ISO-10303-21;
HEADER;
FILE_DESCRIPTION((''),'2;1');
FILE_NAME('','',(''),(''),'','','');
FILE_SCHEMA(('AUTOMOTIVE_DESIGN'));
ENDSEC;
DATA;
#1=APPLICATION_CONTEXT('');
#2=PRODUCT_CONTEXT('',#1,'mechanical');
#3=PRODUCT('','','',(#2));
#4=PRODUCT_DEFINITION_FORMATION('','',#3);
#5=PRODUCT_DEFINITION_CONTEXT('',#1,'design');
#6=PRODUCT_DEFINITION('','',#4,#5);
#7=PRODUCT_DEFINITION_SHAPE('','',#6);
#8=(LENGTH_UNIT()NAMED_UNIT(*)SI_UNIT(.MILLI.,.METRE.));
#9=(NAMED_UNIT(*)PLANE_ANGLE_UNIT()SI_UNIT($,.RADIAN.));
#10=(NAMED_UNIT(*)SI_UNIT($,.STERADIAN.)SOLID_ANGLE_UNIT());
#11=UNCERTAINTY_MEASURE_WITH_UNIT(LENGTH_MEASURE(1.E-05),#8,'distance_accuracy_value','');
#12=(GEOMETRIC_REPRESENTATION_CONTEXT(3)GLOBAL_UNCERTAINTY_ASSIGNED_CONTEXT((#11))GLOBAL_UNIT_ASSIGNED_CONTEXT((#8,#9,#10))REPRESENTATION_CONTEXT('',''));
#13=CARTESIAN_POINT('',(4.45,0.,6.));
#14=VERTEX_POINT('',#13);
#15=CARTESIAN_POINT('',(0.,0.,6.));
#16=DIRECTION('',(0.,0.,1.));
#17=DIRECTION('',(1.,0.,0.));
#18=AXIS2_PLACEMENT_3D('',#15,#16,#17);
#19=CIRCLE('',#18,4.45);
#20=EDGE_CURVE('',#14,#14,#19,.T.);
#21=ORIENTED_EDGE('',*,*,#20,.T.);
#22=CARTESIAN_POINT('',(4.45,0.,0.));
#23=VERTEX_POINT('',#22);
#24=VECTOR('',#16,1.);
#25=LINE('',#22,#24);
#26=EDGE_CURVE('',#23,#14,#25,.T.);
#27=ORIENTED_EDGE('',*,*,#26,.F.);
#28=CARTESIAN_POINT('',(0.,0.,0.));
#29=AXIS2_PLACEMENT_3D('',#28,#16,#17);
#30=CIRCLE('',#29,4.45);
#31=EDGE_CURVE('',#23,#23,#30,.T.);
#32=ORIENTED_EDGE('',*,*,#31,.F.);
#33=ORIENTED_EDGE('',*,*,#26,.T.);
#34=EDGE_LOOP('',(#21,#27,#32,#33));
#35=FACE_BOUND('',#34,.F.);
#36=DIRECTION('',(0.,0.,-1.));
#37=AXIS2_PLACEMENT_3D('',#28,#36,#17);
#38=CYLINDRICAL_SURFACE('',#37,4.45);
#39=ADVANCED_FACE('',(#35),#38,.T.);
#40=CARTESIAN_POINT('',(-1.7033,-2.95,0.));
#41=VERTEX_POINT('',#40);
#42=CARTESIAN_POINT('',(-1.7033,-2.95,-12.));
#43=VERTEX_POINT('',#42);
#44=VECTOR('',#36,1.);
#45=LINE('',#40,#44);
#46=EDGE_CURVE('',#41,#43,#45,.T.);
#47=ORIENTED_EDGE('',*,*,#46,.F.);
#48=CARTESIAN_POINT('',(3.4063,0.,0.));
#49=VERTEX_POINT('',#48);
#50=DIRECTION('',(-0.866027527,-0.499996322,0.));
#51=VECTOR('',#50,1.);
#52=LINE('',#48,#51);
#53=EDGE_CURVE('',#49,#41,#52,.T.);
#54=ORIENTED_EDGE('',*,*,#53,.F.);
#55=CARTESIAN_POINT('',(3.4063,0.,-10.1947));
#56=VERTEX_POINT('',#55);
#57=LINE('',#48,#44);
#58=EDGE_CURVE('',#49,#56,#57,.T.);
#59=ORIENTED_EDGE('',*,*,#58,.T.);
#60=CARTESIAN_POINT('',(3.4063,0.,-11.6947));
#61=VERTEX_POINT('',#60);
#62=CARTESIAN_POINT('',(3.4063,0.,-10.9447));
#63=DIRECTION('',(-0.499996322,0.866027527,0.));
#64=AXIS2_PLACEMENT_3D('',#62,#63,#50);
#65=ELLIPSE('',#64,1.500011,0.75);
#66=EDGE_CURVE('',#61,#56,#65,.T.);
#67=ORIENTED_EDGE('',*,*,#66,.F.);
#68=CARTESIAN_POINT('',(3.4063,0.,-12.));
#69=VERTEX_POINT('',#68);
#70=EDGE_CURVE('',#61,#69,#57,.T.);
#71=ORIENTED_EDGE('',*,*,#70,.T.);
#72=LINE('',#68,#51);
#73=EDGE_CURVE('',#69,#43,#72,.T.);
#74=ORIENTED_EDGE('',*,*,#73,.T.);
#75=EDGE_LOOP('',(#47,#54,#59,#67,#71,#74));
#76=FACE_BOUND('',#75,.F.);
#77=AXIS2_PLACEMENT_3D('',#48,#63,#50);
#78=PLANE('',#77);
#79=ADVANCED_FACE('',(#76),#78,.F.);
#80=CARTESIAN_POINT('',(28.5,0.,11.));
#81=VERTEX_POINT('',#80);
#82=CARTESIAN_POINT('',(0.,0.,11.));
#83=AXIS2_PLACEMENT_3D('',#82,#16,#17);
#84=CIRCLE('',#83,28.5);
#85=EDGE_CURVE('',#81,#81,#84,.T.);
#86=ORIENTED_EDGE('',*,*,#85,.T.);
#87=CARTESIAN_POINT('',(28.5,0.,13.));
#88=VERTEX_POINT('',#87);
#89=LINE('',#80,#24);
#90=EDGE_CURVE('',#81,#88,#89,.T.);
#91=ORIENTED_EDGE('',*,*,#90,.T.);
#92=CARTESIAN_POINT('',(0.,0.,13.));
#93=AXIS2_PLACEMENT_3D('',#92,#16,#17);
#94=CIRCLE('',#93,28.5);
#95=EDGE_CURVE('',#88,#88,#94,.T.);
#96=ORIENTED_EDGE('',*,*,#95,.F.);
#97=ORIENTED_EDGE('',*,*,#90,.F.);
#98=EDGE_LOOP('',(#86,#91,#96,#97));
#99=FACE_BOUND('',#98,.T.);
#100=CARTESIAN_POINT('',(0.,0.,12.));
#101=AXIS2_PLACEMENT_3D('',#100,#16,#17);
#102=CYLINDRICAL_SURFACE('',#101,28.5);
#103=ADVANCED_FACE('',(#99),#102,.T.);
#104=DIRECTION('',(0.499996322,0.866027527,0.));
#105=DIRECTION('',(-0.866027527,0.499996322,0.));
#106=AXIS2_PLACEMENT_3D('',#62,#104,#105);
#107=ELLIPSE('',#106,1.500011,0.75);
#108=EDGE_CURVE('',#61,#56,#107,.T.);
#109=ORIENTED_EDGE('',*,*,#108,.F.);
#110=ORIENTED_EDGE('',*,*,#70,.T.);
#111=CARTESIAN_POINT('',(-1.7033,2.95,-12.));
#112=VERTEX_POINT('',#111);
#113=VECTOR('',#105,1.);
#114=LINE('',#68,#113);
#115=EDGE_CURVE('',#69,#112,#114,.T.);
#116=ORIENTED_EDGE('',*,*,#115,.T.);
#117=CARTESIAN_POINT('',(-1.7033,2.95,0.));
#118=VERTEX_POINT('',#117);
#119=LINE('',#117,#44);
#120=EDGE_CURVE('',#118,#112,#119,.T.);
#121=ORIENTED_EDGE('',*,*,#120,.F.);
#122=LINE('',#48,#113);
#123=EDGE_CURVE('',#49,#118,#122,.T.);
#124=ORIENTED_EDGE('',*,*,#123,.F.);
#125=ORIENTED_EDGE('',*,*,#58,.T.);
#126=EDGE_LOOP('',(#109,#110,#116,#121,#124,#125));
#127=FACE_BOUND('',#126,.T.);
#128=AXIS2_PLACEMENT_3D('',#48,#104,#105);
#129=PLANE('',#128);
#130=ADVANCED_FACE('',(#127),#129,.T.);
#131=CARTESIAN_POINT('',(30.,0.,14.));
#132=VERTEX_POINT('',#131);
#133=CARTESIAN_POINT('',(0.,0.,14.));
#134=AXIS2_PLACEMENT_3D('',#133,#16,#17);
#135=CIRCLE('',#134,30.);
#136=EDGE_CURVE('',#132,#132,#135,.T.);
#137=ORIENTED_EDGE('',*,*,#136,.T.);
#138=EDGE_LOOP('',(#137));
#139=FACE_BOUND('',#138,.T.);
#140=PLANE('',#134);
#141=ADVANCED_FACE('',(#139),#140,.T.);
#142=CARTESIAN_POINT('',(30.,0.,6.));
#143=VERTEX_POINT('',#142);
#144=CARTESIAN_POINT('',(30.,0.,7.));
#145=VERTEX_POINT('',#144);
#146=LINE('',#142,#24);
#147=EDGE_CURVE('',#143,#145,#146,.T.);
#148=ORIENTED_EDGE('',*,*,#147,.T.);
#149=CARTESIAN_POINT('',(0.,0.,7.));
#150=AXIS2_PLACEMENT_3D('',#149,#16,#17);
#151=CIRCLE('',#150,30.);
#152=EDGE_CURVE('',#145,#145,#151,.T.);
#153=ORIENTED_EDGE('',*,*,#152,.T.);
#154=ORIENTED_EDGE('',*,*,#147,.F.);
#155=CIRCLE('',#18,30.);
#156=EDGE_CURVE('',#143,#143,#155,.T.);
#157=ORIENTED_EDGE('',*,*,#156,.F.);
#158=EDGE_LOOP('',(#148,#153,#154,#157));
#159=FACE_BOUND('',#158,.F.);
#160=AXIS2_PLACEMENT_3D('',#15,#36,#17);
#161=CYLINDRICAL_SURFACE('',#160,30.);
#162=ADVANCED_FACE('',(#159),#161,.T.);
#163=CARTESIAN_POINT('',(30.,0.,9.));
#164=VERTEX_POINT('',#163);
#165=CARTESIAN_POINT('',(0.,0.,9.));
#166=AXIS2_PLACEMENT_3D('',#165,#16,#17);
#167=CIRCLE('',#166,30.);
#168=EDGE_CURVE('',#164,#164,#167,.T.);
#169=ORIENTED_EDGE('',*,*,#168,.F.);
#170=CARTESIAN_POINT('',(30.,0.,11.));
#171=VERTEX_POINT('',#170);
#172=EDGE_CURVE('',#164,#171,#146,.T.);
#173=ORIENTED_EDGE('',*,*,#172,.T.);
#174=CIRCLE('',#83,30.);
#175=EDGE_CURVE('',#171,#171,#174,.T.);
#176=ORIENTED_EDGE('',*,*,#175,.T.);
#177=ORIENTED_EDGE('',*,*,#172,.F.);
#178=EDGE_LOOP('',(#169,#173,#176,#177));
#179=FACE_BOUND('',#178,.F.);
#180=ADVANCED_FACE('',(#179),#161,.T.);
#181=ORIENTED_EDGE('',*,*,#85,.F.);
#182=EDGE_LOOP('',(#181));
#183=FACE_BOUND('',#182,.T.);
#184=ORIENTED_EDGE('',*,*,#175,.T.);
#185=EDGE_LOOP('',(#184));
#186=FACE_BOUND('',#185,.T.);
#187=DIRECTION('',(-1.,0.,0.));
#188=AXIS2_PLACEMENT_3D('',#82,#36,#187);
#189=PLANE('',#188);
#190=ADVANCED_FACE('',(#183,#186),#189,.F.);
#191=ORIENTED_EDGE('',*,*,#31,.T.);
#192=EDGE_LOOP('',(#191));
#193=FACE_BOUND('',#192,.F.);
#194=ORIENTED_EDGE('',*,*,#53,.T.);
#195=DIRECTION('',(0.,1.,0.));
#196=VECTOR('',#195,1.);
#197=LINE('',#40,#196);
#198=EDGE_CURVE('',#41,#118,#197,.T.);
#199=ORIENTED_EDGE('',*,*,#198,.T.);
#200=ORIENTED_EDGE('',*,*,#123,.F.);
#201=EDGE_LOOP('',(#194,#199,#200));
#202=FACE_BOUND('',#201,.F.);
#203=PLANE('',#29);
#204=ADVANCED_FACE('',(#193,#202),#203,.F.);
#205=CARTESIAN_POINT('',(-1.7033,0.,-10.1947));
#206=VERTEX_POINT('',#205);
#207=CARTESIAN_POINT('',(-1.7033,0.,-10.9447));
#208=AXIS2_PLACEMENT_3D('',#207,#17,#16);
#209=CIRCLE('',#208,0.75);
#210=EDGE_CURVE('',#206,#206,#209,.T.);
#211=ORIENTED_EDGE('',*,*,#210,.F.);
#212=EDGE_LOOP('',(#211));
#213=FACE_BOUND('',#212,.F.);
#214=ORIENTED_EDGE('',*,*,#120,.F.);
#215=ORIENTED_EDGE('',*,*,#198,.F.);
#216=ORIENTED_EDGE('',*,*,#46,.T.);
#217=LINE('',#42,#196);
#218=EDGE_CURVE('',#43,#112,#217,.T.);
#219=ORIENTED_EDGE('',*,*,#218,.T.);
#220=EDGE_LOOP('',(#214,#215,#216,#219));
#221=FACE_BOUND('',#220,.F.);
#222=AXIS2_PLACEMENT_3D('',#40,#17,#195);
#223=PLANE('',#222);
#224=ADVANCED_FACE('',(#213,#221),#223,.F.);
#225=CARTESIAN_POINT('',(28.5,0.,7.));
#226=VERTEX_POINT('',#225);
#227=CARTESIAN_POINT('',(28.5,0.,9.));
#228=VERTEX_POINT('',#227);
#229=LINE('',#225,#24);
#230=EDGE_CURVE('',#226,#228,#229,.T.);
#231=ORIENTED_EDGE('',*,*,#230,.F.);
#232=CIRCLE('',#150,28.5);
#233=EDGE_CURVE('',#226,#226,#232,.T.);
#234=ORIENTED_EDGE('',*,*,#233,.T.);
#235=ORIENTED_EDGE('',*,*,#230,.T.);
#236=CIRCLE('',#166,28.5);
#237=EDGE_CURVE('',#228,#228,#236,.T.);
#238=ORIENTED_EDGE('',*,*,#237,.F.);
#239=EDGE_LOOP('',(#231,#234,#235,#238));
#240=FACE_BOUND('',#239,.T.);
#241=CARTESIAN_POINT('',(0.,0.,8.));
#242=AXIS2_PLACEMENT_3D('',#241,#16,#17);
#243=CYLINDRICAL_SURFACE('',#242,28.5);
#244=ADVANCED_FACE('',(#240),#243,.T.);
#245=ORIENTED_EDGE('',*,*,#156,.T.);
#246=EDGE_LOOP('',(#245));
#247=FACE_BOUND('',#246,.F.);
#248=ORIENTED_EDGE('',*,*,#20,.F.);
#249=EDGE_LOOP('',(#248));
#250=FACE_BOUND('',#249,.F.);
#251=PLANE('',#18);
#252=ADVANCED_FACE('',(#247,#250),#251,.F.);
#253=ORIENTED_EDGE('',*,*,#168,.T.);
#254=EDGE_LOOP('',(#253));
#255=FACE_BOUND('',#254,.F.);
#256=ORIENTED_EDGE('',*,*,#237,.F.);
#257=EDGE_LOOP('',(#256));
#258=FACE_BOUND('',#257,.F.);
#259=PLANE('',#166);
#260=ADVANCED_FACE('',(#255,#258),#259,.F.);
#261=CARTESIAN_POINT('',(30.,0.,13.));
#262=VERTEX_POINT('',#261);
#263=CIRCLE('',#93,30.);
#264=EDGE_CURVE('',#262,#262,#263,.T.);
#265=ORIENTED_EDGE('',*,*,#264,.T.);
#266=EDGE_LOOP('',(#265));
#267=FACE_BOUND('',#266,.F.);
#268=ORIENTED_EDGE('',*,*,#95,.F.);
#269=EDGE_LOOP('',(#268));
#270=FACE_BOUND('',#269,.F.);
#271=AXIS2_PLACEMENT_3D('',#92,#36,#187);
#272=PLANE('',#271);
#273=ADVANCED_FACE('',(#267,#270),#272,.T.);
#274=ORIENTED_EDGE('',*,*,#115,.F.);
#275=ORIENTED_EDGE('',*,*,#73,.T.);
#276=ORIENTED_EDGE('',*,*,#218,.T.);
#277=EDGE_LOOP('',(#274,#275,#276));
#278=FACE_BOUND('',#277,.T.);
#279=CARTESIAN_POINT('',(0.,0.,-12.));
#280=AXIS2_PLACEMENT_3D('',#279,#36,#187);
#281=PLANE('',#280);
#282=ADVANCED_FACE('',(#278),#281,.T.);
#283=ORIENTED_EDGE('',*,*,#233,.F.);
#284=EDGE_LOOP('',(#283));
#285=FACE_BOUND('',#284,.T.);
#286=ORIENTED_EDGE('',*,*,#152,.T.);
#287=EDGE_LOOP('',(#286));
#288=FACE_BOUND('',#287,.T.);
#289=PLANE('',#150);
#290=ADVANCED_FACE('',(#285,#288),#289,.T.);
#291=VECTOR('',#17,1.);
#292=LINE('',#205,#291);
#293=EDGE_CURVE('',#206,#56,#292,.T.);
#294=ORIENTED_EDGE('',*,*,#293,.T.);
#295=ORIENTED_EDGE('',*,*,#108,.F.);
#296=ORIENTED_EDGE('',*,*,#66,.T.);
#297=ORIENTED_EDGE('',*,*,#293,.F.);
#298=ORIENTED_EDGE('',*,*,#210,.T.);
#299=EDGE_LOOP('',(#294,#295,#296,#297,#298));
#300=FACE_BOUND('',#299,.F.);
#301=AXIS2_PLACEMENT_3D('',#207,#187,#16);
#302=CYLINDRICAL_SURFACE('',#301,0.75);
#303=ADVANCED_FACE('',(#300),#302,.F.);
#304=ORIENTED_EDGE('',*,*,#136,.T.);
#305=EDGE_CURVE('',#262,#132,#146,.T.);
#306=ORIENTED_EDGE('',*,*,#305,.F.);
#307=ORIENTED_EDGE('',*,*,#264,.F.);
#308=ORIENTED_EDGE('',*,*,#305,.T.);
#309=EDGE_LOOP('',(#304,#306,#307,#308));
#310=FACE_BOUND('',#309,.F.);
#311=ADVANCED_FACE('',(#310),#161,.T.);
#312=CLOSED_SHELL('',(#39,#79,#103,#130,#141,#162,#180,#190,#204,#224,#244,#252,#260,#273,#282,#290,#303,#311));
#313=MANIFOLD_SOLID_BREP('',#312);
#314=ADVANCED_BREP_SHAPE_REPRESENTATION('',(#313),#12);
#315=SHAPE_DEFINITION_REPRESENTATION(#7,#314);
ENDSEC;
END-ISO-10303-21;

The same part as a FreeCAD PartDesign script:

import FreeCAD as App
import Part
import Sketcher
from FreeCAD import Vector


def add_polygon(sketch, points):
    """Adds a closed chain of lines whose ends are joined by coincident constraints."""
    first, n = sketch.GeometryCount, len(points)
    for a, b in zip(points, points[1:] + points[:1]):
        sketch.addGeometry(Part.LineSegment(App.Vector(*a, 0), App.Vector(*b, 0)), False)
    for i in range(n):
        sketch.addConstraint(Sketcher.Constraint("Coincident", first + i, 2, first + (i + 1) % n, 1))

doc = App.newDocument("Part")
body = doc.addObject("PartDesign::Body", "Body")

# Sketch on XY plane
sketch1 = body.newObject("Sketcher::SketchObject", "Sketch")
sketch1.AttachmentSupport = (doc.getObject("XY_Plane"), [""])
sketch1.MapMode = "FlatFace"
sketch1.addGeometry(Part.Circle(Vector(0, 0, 0), Vector(0, 0, 1), 4.5), False)
sketch1.addConstraint([
    Sketcher.Constraint("Coincident", 0, 3, -1, 1),
    Sketcher.Constraint("Diameter", 0, 8.9),
])
pad1 = body.newObject("PartDesign::Pad", "Pad")
pad1.Profile = sketch1
pad1.Length = 6

# Sketch on XY plane
sketch2 = body.newObject("Sketcher::SketchObject", "Sketch001")
sketch2.AttachmentSupport = (doc.getObject("XY_Plane"), [""])
sketch2.MapMode = "FlatFace"
sketch2.AttachmentOffset = App.Placement(Vector(0, 0, 6), App.Rotation())
sketch2.addGeometry(Part.Circle(Vector(0, 0, 0), Vector(0, 0, 1), 30), False)
sketch2.addConstraint([
    Sketcher.Constraint("Coincident", 0, 3, -1, 1),
    Sketcher.Constraint("Diameter", 0, 60.0),
])
pad2 = body.newObject("PartDesign::Pad", "Pad001")
pad2.Profile = sketch2
pad2.Length = 8

# Sketch on XY plane
sketch3 = body.newObject("Sketcher::SketchObject", "Sketch002")
sketch3.AttachmentSupport = (doc.getObject("XY_Plane"), [""])
sketch3.MapMode = "FlatFace"
sketch3.AttachmentOffset = App.Placement(Vector(0, 0, 8), App.Rotation())
sketch3.addGeometry([
    Part.Circle(Vector(0, 0, 0), Vector(0, 0, 1), 30),
    Part.Circle(Vector(0, 0, 0), Vector(0, 0, 1), 28),
], False)
sketch3.addConstraint([
    Sketcher.Constraint("Coincident", 0, 3, -1, 1),
    Sketcher.Constraint("Coincident", 1, 3, -1, 1),
    Sketcher.Constraint("Diameter", 0, 60.0),
    Sketcher.Constraint("Diameter", 1, 57.0),
])
pocket1 = body.newObject("PartDesign::Pocket", "Pocket")
pocket1.Profile = sketch3
pocket1.Length = 2
pocket1.Midplane = True
doc.recompute()

datumplane = body.newObject("PartDesign::Plane", "DatumPlane")
datumplane.AttachmentSupport = (doc.getObject("XY_Plane"), [""])
datumplane.MapMode = "FlatFace"
datumplane.AttachmentOffset = App.Placement(Vector(0, 0, 10), App.Rotation())
mirrored = body.newObject("PartDesign::Mirrored", "Mirrored")
mirrored.Originals = [pocket1]
mirrored.MirrorPlane = (datumplane, [""])
body.Tip = mirrored

# Sketch on XY plane
sketch4 = body.newObject("Sketcher::SketchObject", "Sketch003")
sketch4.AttachmentSupport = (doc.getObject("XY_Plane"), [""])
sketch4.MapMode = "FlatFace"
add_polygon(sketch4, [(-2, 3), (3, 0), (-2, -3)])  # lines 0-2
sketch4.addConstraint([
    Sketcher.Constraint("Vertical", 2),
    Sketcher.Constraint("PointOnObject", 0, 2, -1),
    Sketcher.Constraint("Equal", 0, 1),
    Sketcher.Constraint("DistanceY", 2, 1, 2, 2, 5.9),
    Sketcher.Constraint("Distance", 0, 5.9),
    Sketcher.Constraint("DistanceX", -1, 1, 0, 2, 3.4063),
])
pad3 = body.newObject("PartDesign::Pad", "Pad002")
pad3.Profile = sketch4
pad3.Length = 12
pad3.Reversed = True

# Sketch on YZ plane
sketch5 = body.newObject("Sketcher::SketchObject", "Sketch004")
sketch5.AttachmentSupport = (doc.getObject("YZ_Plane"), [""])
sketch5.MapMode = "FlatFace"
sketch5.AttachmentOffset = App.Placement(Vector(0, 0, -1.7033), App.Rotation())
sketch5.addGeometry(Part.Circle(Vector(0, -10.9, 0), Vector(0, 0, 1), 0.8), False)
sketch5.addConstraint([
    Sketcher.Constraint("PointOnObject", 0, 3, -2),
    Sketcher.Constraint("Diameter", 0, 1.5),
    Sketcher.Constraint("DistanceY", 0, 3, -1, 1, 10.9447),
])
pocket2 = body.newObject("PartDesign::Pocket", "Pocket001")
pocket2.Profile = sketch5
pocket2.Length = 12
pocket2.Reversed = True

doc.recompute()
